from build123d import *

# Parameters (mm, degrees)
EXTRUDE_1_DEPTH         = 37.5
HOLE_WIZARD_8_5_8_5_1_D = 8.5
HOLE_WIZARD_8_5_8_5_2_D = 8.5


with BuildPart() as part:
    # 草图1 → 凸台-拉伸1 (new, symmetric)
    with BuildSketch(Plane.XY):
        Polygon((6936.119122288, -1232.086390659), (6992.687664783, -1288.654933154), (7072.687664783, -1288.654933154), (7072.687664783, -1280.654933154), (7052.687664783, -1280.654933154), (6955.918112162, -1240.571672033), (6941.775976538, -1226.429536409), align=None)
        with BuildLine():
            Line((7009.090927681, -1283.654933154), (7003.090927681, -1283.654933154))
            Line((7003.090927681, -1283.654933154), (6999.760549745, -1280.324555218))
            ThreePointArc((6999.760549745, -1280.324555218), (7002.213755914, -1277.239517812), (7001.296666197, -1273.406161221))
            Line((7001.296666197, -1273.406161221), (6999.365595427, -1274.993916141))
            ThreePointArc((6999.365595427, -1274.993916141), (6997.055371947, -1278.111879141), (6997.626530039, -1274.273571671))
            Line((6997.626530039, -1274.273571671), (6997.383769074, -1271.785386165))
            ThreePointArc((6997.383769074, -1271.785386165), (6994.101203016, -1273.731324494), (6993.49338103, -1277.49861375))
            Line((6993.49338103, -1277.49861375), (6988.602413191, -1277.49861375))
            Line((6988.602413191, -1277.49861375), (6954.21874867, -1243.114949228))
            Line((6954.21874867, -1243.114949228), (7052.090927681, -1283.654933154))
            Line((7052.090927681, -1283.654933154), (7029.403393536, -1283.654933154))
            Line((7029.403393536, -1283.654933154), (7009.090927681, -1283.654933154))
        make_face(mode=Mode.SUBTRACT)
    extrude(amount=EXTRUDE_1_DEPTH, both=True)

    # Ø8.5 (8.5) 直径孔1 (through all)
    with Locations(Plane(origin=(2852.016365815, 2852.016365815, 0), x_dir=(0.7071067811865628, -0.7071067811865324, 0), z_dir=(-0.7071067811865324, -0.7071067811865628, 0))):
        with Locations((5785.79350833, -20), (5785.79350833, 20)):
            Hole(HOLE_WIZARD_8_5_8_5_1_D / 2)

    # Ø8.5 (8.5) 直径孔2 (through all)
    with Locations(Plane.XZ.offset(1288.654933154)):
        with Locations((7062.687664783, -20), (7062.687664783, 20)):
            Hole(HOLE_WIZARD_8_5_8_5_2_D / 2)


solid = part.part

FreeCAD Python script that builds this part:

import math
import FreeCAD as App
import Part
import Sketcher
Q = App.Units.Quantity

doc = App.newDocument("Part")
body = doc.addObject("PartDesign::Body", "Body")

# Sketch on XY plane
sketch1 = doc.addObject("Sketcher::SketchObject", "Sketch")
body.addObject(sketch1)
sketch1.AttachmentSupport = (doc.XY_Plane, [""])
sketch1.MapMode = "FlatFace"
sketch1.addGeometry(Part.LineSegment(App.Vector(6936.1, -1232.1, 0), App.Vector(6992.7, -1288.7, 0)), False)
sketch1.addGeometry(Part.LineSegment(App.Vector(6992.7, -1288.7, 0), App.Vector(7072.7, -1288.7, 0)), False)
sketch1.addGeometry(Part.LineSegment(App.Vector(7072.7, -1288.7, 0), App.Vector(7072.7, -1280.7, 0)), False)
sketch1.addGeometry(Part.LineSegment(App.Vector(7072.7, -1280.7, 0), App.Vector(7052.7, -1280.7, 0)), False)
sketch1.addGeometry(Part.LineSegment(App.Vector(7052.7, -1280.7, 0), App.Vector(6955.9, -1240.6, 0)), False)
sketch1.addGeometry(Part.LineSegment(App.Vector(6955.9, -1240.6, 0), App.Vector(6941.8, -1226.4, 0)), False)
sketch1.addGeometry(Part.LineSegment(App.Vector(6941.8, -1226.4, 0), App.Vector(6936.1, -1232.1, 0)), False)
sketch1.addGeometry(Part.LineSegment(App.Vector(7052.1, -1283.7, 0), App.Vector(7003.1, -1283.7, 0)), False)
sketch1.addGeometry(Part.LineSegment(App.Vector(7003.1, -1283.7, 0), App.Vector(6999.8, -1280.3, 0)), False)
sketch1.addGeometry(Part.ArcOfCircle(Part.Circle(App.Vector(6997.8, -1276.3, 0), App.Vector(0, 0, 1), 4.5), math.radians(-64), math.radians(39)), False)
sketch1.addGeometry(Part.LineSegment(App.Vector(7001.3, -1273.4, 0), App.Vector(6999.4, -1275, 0)), False)
sketch1.addGeometry(Part.ArcOfCircle(Part.Circle(App.Vector(6997.8, -1276.3, 0), App.Vector(0, 0, 1), 2), math.radians(96), math.radians(399)), False)
sketch1.addGeometry(Part.LineSegment(App.Vector(6997.6, -1274.3, 0), App.Vector(6997.4, -1271.8, 0)), False)
sketch1.addGeometry(Part.ArcOfCircle(Part.Circle(App.Vector(6997.8, -1276.3, 0), App.Vector(0, 0, 1), 4.5), math.radians(96), math.radians(196)), False)
sketch1.addGeometry(Part.LineSegment(App.Vector(6993.5, -1277.5, 0), App.Vector(6988.6, -1277.5, 0)), False)
sketch1.addGeometry(Part.LineSegment(App.Vector(6988.6, -1277.5, 0), App.Vector(6954.2, -1243.1, 0)), False)
sketch1.addGeometry(Part.LineSegment(App.Vector(6954.2, -1243.1, 0), App.Vector(7052.1, -1283.7, 0)), False)
sketch1.addConstraint(Sketcher.Constraint("Coincident", 0, 2, 1, 1))
sketch1.addConstraint(Sketcher.Constraint("Coincident", 1, 2, 2, 1))
sketch1.addConstraint(Sketcher.Constraint("Coincident", 2, 2, 3, 1))
sketch1.addConstraint(Sketcher.Constraint("Coincident", 3, 2, 4, 1))
sketch1.addConstraint(Sketcher.Constraint("Coincident", 4, 2, 5, 1))
sketch1.addConstraint(Sketcher.Constraint("Coincident", 5, 2, 6, 1))
sketch1.addConstraint(Sketcher.Constraint("Coincident", 6, 2, 0, 1))
sketch1.addConstraint(Sketcher.Constraint("Coincident", 7, 2, 8, 1))
sketch1.addConstraint(Sketcher.Constraint("Coincident", 8, 2, 9, 1))
sketch1.addConstraint(Sketcher.Constraint("Coincident", 9, 2, 10, 1))
sketch1.addConstraint(Sketcher.Constraint("Coincident", 10, 2, 11, 2))
sketch1.addConstraint(Sketcher.Constraint("Coincident", 11, 1, 12, 1))
sketch1.addConstraint(Sketcher.Constraint("Coincident", 12, 2, 13, 1))
sketch1.addConstraint(Sketcher.Constraint("Coincident", 13, 2, 14, 1))
sketch1.addConstraint(Sketcher.Constraint("Coincident", 14, 2, 15, 1))
sketch1.addConstraint(Sketcher.Constraint("Coincident", 15, 2, 16, 1))
sketch1.addConstraint(Sketcher.Constraint("Coincident", 16, 2, 7, 1))
sketch1.addConstraint(Sketcher.Constraint("Horizontal", 1))
sketch1.addConstraint(Sketcher.Constraint("Vertical", 2))
sketch1.addConstraint(Sketcher.Constraint("Horizontal", 3))
sketch1.addConstraint(Sketcher.Constraint("Horizontal", 7))
sketch1.addConstraint(Sketcher.Constraint("Horizontal", 14))
sketch1.addConstraint(Sketcher.Constraint("Coincident", 11, 3, 9, 3))
sketch1.addConstraint(Sketcher.Constraint("Coincident", 13, 3, 9, 3))
sketch1.addConstraint(Sketcher.Constraint("Equal", 9, 13))
sketch1.addConstraint(Sketcher.Constraint("Parallel", 0, 5))
sketch1.addConstraint(Sketcher.Constraint("Perpendicular", 5, 6))
sketch1.addConstraint(Sketcher.Constraint("Perpendicular", 6, 8))
sketch1.addConstraint(Sketcher.Constraint("Parallel", 8, 15))
sketch1.addConstraint(Sketcher.Constraint("Parallel", 4, 16))
sketch1.addConstraint(Sketcher.Constraint("Radius", 11, Q("2 mm")))
sketch1.addConstraint(Sketcher.Constraint("Radius", 9, Q("4.5 mm")))
sketch1.addConstraint(Sketcher.Constraint("DistanceX", 1, 1, 1, 2, Q("80 mm")))
sketch1.addConstraint(Sketcher.Constraint("DistanceX", 3, 2, 3, 1, Q("20 mm")))
sketch1.addConstraint(Sketcher.Constraint("DistanceX", 7, 2, 7, 1, Q("49 mm")))
sketch1.addConstraint(Sketcher.Constraint("DistanceY", 2, 1, 2, 2, Q("8 mm")))
sketch1.addConstraint(Sketcher.Constraint("Angle", 0, Q("-45 deg")))
sketch1.addConstraint(Sketcher.Constraint("Distance", 0, Q("80 mm")))
sketch1.addConstraint(Sketcher.Constraint("Distance", 5, Q("20 mm")))
sketch1.addConstraint(Sketcher.Constraint("Distance", 6, Q("8 mm")))
sketch1.addConstraint(Sketcher.Constraint("DistanceY", 0, 2, 7, 2, Q("5 mm")))
sketch1.addConstraint(Sketcher.Constraint("DistanceX", 14, 2, 14, 1, Q("4.890968 mm")))
sketch1.addConstraint(Sketcher.Constraint("DistanceX", -1, 1, 9, 3, Q("6997.820739 mm")))
sketch1.addConstraint(Sketcher.Constraint("DistanceY", 9, 3, -1, 1, Q("1276.26412 mm")))
sketch1.addConstraint(Sketcher.Constraint("DistanceY", 6, 2, -1, 1, Q("1232.086391 mm")))
sketch1.addConstraint(Sketcher.Constraint("DistanceX", -1, 1, 8, 2, Q("6999.76055 mm")))
sketch1.addConstraint(Sketcher.Constraint("DistanceY", 9, 2, -1, 1, Q("1273.406161 mm")))
sketch1.addConstraint(Sketcher.Constraint("DistanceX", -1, 1, 11, 1, Q("6997.62653 mm")))
sketch1.addConstraint(Sketcher.Constraint("DistanceX", -1, 1, 12, 2, Q("6997.383769 mm")))
sketch1.addConstraint(Sketcher.Constraint("DistanceX", -1, 1, 13, 2, Q("6993.493381 mm")))
sketch1.addConstraint(Sketcher.Constraint("DistanceX", 10, 2, 9, 2, Q("1.931071 mm")))
sketch1.addConstraint(Sketcher.Constraint("DistanceX", -1, 1, 0, 2, Q("6992.687665 mm")))
pad1 = doc.addObject("PartDesign::Pad", "Pad")
body.addObject(pad1)
pad1.Profile = sketch1
pad1.Length = 75
pad1.Midplane = True

# Sketch on an angled plane
sketch2 = doc.addObject("Sketcher::SketchObject", "Sketch001")
body.addObject(sketch2)
sketch2.Placement = App.Placement(App.Vector(2852.016366, 2852.016366, 0), App.Rotation(App.Vector(0.707106781, -0.707106781, 0), App.Vector(0, 0, 0.999999999), App.Vector(-0.707106781, -0.707106781, 0), "ZXY"))
sketch2.addGeometry(Part.Circle(App.Vector(5785.8, -20, 0), App.Vector(0, 0, 1), 4.2), False)
sketch2.addGeometry(Part.Circle(App.Vector(5785.8, 20, 0), App.Vector(0, 0, 1), 4.2), False)
sketch2.addConstraint(Sketcher.Constraint("Equal", 0, 1))
sketch2.addConstraint(Sketcher.Constraint("Symmetric", 0, 3, 1, 3, -1))
sketch2.addConstraint(Sketcher.Constraint("Diameter", 0, Q("8.5 mm")))
sketch2.addConstraint(Sketcher.Constraint("DistanceY", 0, 3, -1, 1, Q("20 mm")))
sketch2.addConstraint(Sketcher.Constraint("DistanceX", -1, 1, 0, 3, Q("5785.793505 mm")))
doc.recompute()
hole = doc.addObject("PartDesign::Hole", "Hole")
body.addObject(hole)
hole.Profile = sketch2
hole.ThreadType = "None"
hole.Diameter = 8.5
hole.DepthType = "ThroughAll"

# Sketch on XZ plane
sketch3 = doc.addObject("Sketcher::SketchObject", "Sketch002")
body.addObject(sketch3)
sketch3.AttachmentSupport = (doc.XZ_Plane, [""])
sketch3.MapMode = "FlatFace"
sketch3.AttachmentOffset = App.Placement(App.Vector(0, 0, 1288.654933), App.Rotation())
sketch3.addGeometry(Part.Circle(App.Vector(7062.7, -20, 0), App.Vector(0, 0, 1), 4.2), False)
sketch3.addGeometry(Part.Circle(App.Vector(7062.7, 20, 0), App.Vector(0, 0, 1), 4.2), False)
sketch3.addConstraint(Sketcher.Constraint("Equal", 0, 1))
sketch3.addConstraint(Sketcher.Constraint("Symmetric", 0, 3, 1, 3, -1))
sketch3.addConstraint(Sketcher.Constraint("Diameter", 0, Q("8.5 mm")))
sketch3.addConstraint(Sketcher.Constraint("DistanceY", 0, 3, -1, 1, Q("20 mm")))
sketch3.addConstraint(Sketcher.Constraint("DistanceX", -1, 1, 0, 3, Q("7062.687665 mm")))
doc.recompute()
hole2 = doc.addObject("PartDesign::Hole", "Hole001")
body.addObject(hole2)
hole2.Profile = sketch3
hole2.ThreadType = "None"
hole2.Diameter = 8.5
hole2.DepthType = "ThroughAll"

doc.recompute()
